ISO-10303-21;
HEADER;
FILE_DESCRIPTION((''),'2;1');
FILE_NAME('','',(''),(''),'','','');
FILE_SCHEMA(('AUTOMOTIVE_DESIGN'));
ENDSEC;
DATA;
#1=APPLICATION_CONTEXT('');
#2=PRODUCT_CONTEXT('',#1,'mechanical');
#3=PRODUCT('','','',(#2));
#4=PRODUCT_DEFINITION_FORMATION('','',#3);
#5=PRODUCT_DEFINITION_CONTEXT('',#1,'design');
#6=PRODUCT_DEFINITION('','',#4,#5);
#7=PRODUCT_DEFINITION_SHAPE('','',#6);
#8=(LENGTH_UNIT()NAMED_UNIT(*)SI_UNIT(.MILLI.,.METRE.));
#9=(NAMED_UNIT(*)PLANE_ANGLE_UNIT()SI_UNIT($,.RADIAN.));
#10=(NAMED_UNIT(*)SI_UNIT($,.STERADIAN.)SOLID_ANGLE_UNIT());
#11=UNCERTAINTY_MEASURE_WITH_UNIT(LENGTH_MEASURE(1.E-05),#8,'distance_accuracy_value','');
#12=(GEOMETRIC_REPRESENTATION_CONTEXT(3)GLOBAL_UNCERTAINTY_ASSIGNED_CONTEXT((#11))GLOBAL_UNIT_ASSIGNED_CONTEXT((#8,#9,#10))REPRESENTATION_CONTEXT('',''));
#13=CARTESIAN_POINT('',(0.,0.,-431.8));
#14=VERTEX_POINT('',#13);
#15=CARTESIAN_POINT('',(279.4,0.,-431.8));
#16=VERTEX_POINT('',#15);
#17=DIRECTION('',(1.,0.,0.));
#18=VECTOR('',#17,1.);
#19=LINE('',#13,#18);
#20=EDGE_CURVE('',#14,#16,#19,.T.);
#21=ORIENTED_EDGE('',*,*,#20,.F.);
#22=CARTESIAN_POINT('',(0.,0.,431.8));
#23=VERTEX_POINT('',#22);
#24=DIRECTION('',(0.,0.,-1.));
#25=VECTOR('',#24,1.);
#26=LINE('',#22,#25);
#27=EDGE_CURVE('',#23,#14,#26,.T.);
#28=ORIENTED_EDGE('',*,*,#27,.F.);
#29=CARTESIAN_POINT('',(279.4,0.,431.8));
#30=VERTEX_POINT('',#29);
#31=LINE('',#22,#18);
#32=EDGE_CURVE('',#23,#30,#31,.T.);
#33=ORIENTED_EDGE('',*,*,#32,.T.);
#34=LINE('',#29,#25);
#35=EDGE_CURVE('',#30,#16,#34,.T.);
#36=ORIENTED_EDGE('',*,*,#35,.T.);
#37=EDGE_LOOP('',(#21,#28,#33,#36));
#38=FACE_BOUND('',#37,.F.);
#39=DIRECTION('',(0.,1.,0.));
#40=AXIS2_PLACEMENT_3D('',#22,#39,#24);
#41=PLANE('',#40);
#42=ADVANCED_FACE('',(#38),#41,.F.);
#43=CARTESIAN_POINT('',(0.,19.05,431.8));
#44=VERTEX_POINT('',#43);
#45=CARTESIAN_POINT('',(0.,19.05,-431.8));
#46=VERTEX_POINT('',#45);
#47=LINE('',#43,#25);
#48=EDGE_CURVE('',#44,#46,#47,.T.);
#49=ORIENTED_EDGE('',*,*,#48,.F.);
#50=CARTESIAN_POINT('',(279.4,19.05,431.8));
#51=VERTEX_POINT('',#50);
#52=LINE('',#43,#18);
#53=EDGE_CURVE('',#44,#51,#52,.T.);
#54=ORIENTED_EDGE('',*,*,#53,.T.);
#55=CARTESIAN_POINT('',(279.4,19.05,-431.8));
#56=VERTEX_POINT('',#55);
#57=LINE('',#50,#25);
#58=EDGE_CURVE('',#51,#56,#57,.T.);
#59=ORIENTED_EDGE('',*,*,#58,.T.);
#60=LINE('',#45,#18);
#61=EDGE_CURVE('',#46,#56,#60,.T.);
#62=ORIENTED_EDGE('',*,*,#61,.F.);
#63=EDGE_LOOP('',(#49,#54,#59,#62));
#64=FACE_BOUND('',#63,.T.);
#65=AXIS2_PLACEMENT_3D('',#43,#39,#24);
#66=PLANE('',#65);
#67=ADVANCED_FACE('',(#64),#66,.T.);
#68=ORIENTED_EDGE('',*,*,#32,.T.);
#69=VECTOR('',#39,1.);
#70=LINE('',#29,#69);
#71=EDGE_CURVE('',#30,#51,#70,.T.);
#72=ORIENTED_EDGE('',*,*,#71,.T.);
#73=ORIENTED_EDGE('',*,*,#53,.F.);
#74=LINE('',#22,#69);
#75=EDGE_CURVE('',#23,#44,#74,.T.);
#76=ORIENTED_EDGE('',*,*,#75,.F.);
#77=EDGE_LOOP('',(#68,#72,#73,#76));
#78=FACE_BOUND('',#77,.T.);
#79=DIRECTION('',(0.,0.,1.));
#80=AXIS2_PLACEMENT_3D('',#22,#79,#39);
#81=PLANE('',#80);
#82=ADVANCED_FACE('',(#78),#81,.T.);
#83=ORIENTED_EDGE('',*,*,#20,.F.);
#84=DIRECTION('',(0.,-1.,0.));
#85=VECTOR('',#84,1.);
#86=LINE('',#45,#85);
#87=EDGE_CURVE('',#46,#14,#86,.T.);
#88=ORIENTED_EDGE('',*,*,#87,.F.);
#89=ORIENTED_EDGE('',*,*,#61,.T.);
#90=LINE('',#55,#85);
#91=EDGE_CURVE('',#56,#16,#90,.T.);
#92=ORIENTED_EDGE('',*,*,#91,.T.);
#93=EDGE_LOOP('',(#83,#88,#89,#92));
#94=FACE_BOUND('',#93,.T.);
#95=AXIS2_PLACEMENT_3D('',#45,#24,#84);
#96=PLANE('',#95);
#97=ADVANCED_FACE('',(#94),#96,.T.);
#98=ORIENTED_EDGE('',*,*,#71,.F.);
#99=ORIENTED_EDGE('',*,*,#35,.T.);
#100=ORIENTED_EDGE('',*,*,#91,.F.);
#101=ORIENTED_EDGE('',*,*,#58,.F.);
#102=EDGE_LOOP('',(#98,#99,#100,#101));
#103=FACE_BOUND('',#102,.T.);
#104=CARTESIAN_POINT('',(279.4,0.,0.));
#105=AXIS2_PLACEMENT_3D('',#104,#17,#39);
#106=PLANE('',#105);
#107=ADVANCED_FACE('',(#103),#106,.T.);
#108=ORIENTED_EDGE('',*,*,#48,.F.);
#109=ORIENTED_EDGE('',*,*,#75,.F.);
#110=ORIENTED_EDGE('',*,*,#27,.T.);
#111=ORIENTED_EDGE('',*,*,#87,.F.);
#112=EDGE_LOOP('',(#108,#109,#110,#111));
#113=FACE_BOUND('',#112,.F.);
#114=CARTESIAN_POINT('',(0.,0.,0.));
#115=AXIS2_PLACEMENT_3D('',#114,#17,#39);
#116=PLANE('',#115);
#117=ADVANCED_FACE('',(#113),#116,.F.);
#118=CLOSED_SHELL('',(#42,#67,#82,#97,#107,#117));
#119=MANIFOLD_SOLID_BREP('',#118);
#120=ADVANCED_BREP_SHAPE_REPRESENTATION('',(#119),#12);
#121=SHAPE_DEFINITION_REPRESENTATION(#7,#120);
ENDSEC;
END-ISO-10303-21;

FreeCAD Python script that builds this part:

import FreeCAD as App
import Part
import Sketcher

V = App.Vector
Q = App.Units.Quantity


def add_polygon(sketch, points):
    """Adds a closed chain of lines whose ends are joined by coincident constraints."""
    first, n = sketch.GeometryCount, len(points)
    for a, b in zip(points, points[1:] + points[:1]):
        sketch.addGeometry(Part.LineSegment(App.Vector(*a, 0), App.Vector(*b, 0)), False)
    for i in range(n):
        sketch.addConstraint(Sketcher.Constraint("Coincident", first + i, 2, first + (i + 1) % n, 1))

doc = App.newDocument("Part")
body = doc.addObject("PartDesign::Body", "Body")

# Sketch on YZ plane
sketch1 = doc.addObject("Sketcher::SketchObject", "Sketch")
body.addObject(sketch1)
sketch1.AttachmentSupport = (doc.YZ_Plane, [""])
sketch1.MapMode = "FlatFace"
add_polygon(sketch1, [(19, 432), (0, 432), (0, -432), (19, -432)])  # lines 0-3
sketch1.addConstraint([
    Sketcher.Constraint("Horizontal", 0),
    Sketcher.Constraint("Vertical", 1),
    Sketcher.Constraint("Horizontal", 2),
    Sketcher.Constraint("Vertical", 3),
    Sketcher.Constraint("Symmetric", 0, 2, 1, 2, -1, 1),
    Sketcher.Constraint("DistanceY", 1, 2, 1, 1, Q("34 in")),
    Sketcher.Constraint("DistanceX", 0, 2, 0, 1, Q("0.75 in")),
])
pad1 = doc.addObject("PartDesign::Pad", "Pad")
body.addObject(pad1)
pad1.Profile = sketch1
pad1.Length = Q("11 in")

doc.recompute()
